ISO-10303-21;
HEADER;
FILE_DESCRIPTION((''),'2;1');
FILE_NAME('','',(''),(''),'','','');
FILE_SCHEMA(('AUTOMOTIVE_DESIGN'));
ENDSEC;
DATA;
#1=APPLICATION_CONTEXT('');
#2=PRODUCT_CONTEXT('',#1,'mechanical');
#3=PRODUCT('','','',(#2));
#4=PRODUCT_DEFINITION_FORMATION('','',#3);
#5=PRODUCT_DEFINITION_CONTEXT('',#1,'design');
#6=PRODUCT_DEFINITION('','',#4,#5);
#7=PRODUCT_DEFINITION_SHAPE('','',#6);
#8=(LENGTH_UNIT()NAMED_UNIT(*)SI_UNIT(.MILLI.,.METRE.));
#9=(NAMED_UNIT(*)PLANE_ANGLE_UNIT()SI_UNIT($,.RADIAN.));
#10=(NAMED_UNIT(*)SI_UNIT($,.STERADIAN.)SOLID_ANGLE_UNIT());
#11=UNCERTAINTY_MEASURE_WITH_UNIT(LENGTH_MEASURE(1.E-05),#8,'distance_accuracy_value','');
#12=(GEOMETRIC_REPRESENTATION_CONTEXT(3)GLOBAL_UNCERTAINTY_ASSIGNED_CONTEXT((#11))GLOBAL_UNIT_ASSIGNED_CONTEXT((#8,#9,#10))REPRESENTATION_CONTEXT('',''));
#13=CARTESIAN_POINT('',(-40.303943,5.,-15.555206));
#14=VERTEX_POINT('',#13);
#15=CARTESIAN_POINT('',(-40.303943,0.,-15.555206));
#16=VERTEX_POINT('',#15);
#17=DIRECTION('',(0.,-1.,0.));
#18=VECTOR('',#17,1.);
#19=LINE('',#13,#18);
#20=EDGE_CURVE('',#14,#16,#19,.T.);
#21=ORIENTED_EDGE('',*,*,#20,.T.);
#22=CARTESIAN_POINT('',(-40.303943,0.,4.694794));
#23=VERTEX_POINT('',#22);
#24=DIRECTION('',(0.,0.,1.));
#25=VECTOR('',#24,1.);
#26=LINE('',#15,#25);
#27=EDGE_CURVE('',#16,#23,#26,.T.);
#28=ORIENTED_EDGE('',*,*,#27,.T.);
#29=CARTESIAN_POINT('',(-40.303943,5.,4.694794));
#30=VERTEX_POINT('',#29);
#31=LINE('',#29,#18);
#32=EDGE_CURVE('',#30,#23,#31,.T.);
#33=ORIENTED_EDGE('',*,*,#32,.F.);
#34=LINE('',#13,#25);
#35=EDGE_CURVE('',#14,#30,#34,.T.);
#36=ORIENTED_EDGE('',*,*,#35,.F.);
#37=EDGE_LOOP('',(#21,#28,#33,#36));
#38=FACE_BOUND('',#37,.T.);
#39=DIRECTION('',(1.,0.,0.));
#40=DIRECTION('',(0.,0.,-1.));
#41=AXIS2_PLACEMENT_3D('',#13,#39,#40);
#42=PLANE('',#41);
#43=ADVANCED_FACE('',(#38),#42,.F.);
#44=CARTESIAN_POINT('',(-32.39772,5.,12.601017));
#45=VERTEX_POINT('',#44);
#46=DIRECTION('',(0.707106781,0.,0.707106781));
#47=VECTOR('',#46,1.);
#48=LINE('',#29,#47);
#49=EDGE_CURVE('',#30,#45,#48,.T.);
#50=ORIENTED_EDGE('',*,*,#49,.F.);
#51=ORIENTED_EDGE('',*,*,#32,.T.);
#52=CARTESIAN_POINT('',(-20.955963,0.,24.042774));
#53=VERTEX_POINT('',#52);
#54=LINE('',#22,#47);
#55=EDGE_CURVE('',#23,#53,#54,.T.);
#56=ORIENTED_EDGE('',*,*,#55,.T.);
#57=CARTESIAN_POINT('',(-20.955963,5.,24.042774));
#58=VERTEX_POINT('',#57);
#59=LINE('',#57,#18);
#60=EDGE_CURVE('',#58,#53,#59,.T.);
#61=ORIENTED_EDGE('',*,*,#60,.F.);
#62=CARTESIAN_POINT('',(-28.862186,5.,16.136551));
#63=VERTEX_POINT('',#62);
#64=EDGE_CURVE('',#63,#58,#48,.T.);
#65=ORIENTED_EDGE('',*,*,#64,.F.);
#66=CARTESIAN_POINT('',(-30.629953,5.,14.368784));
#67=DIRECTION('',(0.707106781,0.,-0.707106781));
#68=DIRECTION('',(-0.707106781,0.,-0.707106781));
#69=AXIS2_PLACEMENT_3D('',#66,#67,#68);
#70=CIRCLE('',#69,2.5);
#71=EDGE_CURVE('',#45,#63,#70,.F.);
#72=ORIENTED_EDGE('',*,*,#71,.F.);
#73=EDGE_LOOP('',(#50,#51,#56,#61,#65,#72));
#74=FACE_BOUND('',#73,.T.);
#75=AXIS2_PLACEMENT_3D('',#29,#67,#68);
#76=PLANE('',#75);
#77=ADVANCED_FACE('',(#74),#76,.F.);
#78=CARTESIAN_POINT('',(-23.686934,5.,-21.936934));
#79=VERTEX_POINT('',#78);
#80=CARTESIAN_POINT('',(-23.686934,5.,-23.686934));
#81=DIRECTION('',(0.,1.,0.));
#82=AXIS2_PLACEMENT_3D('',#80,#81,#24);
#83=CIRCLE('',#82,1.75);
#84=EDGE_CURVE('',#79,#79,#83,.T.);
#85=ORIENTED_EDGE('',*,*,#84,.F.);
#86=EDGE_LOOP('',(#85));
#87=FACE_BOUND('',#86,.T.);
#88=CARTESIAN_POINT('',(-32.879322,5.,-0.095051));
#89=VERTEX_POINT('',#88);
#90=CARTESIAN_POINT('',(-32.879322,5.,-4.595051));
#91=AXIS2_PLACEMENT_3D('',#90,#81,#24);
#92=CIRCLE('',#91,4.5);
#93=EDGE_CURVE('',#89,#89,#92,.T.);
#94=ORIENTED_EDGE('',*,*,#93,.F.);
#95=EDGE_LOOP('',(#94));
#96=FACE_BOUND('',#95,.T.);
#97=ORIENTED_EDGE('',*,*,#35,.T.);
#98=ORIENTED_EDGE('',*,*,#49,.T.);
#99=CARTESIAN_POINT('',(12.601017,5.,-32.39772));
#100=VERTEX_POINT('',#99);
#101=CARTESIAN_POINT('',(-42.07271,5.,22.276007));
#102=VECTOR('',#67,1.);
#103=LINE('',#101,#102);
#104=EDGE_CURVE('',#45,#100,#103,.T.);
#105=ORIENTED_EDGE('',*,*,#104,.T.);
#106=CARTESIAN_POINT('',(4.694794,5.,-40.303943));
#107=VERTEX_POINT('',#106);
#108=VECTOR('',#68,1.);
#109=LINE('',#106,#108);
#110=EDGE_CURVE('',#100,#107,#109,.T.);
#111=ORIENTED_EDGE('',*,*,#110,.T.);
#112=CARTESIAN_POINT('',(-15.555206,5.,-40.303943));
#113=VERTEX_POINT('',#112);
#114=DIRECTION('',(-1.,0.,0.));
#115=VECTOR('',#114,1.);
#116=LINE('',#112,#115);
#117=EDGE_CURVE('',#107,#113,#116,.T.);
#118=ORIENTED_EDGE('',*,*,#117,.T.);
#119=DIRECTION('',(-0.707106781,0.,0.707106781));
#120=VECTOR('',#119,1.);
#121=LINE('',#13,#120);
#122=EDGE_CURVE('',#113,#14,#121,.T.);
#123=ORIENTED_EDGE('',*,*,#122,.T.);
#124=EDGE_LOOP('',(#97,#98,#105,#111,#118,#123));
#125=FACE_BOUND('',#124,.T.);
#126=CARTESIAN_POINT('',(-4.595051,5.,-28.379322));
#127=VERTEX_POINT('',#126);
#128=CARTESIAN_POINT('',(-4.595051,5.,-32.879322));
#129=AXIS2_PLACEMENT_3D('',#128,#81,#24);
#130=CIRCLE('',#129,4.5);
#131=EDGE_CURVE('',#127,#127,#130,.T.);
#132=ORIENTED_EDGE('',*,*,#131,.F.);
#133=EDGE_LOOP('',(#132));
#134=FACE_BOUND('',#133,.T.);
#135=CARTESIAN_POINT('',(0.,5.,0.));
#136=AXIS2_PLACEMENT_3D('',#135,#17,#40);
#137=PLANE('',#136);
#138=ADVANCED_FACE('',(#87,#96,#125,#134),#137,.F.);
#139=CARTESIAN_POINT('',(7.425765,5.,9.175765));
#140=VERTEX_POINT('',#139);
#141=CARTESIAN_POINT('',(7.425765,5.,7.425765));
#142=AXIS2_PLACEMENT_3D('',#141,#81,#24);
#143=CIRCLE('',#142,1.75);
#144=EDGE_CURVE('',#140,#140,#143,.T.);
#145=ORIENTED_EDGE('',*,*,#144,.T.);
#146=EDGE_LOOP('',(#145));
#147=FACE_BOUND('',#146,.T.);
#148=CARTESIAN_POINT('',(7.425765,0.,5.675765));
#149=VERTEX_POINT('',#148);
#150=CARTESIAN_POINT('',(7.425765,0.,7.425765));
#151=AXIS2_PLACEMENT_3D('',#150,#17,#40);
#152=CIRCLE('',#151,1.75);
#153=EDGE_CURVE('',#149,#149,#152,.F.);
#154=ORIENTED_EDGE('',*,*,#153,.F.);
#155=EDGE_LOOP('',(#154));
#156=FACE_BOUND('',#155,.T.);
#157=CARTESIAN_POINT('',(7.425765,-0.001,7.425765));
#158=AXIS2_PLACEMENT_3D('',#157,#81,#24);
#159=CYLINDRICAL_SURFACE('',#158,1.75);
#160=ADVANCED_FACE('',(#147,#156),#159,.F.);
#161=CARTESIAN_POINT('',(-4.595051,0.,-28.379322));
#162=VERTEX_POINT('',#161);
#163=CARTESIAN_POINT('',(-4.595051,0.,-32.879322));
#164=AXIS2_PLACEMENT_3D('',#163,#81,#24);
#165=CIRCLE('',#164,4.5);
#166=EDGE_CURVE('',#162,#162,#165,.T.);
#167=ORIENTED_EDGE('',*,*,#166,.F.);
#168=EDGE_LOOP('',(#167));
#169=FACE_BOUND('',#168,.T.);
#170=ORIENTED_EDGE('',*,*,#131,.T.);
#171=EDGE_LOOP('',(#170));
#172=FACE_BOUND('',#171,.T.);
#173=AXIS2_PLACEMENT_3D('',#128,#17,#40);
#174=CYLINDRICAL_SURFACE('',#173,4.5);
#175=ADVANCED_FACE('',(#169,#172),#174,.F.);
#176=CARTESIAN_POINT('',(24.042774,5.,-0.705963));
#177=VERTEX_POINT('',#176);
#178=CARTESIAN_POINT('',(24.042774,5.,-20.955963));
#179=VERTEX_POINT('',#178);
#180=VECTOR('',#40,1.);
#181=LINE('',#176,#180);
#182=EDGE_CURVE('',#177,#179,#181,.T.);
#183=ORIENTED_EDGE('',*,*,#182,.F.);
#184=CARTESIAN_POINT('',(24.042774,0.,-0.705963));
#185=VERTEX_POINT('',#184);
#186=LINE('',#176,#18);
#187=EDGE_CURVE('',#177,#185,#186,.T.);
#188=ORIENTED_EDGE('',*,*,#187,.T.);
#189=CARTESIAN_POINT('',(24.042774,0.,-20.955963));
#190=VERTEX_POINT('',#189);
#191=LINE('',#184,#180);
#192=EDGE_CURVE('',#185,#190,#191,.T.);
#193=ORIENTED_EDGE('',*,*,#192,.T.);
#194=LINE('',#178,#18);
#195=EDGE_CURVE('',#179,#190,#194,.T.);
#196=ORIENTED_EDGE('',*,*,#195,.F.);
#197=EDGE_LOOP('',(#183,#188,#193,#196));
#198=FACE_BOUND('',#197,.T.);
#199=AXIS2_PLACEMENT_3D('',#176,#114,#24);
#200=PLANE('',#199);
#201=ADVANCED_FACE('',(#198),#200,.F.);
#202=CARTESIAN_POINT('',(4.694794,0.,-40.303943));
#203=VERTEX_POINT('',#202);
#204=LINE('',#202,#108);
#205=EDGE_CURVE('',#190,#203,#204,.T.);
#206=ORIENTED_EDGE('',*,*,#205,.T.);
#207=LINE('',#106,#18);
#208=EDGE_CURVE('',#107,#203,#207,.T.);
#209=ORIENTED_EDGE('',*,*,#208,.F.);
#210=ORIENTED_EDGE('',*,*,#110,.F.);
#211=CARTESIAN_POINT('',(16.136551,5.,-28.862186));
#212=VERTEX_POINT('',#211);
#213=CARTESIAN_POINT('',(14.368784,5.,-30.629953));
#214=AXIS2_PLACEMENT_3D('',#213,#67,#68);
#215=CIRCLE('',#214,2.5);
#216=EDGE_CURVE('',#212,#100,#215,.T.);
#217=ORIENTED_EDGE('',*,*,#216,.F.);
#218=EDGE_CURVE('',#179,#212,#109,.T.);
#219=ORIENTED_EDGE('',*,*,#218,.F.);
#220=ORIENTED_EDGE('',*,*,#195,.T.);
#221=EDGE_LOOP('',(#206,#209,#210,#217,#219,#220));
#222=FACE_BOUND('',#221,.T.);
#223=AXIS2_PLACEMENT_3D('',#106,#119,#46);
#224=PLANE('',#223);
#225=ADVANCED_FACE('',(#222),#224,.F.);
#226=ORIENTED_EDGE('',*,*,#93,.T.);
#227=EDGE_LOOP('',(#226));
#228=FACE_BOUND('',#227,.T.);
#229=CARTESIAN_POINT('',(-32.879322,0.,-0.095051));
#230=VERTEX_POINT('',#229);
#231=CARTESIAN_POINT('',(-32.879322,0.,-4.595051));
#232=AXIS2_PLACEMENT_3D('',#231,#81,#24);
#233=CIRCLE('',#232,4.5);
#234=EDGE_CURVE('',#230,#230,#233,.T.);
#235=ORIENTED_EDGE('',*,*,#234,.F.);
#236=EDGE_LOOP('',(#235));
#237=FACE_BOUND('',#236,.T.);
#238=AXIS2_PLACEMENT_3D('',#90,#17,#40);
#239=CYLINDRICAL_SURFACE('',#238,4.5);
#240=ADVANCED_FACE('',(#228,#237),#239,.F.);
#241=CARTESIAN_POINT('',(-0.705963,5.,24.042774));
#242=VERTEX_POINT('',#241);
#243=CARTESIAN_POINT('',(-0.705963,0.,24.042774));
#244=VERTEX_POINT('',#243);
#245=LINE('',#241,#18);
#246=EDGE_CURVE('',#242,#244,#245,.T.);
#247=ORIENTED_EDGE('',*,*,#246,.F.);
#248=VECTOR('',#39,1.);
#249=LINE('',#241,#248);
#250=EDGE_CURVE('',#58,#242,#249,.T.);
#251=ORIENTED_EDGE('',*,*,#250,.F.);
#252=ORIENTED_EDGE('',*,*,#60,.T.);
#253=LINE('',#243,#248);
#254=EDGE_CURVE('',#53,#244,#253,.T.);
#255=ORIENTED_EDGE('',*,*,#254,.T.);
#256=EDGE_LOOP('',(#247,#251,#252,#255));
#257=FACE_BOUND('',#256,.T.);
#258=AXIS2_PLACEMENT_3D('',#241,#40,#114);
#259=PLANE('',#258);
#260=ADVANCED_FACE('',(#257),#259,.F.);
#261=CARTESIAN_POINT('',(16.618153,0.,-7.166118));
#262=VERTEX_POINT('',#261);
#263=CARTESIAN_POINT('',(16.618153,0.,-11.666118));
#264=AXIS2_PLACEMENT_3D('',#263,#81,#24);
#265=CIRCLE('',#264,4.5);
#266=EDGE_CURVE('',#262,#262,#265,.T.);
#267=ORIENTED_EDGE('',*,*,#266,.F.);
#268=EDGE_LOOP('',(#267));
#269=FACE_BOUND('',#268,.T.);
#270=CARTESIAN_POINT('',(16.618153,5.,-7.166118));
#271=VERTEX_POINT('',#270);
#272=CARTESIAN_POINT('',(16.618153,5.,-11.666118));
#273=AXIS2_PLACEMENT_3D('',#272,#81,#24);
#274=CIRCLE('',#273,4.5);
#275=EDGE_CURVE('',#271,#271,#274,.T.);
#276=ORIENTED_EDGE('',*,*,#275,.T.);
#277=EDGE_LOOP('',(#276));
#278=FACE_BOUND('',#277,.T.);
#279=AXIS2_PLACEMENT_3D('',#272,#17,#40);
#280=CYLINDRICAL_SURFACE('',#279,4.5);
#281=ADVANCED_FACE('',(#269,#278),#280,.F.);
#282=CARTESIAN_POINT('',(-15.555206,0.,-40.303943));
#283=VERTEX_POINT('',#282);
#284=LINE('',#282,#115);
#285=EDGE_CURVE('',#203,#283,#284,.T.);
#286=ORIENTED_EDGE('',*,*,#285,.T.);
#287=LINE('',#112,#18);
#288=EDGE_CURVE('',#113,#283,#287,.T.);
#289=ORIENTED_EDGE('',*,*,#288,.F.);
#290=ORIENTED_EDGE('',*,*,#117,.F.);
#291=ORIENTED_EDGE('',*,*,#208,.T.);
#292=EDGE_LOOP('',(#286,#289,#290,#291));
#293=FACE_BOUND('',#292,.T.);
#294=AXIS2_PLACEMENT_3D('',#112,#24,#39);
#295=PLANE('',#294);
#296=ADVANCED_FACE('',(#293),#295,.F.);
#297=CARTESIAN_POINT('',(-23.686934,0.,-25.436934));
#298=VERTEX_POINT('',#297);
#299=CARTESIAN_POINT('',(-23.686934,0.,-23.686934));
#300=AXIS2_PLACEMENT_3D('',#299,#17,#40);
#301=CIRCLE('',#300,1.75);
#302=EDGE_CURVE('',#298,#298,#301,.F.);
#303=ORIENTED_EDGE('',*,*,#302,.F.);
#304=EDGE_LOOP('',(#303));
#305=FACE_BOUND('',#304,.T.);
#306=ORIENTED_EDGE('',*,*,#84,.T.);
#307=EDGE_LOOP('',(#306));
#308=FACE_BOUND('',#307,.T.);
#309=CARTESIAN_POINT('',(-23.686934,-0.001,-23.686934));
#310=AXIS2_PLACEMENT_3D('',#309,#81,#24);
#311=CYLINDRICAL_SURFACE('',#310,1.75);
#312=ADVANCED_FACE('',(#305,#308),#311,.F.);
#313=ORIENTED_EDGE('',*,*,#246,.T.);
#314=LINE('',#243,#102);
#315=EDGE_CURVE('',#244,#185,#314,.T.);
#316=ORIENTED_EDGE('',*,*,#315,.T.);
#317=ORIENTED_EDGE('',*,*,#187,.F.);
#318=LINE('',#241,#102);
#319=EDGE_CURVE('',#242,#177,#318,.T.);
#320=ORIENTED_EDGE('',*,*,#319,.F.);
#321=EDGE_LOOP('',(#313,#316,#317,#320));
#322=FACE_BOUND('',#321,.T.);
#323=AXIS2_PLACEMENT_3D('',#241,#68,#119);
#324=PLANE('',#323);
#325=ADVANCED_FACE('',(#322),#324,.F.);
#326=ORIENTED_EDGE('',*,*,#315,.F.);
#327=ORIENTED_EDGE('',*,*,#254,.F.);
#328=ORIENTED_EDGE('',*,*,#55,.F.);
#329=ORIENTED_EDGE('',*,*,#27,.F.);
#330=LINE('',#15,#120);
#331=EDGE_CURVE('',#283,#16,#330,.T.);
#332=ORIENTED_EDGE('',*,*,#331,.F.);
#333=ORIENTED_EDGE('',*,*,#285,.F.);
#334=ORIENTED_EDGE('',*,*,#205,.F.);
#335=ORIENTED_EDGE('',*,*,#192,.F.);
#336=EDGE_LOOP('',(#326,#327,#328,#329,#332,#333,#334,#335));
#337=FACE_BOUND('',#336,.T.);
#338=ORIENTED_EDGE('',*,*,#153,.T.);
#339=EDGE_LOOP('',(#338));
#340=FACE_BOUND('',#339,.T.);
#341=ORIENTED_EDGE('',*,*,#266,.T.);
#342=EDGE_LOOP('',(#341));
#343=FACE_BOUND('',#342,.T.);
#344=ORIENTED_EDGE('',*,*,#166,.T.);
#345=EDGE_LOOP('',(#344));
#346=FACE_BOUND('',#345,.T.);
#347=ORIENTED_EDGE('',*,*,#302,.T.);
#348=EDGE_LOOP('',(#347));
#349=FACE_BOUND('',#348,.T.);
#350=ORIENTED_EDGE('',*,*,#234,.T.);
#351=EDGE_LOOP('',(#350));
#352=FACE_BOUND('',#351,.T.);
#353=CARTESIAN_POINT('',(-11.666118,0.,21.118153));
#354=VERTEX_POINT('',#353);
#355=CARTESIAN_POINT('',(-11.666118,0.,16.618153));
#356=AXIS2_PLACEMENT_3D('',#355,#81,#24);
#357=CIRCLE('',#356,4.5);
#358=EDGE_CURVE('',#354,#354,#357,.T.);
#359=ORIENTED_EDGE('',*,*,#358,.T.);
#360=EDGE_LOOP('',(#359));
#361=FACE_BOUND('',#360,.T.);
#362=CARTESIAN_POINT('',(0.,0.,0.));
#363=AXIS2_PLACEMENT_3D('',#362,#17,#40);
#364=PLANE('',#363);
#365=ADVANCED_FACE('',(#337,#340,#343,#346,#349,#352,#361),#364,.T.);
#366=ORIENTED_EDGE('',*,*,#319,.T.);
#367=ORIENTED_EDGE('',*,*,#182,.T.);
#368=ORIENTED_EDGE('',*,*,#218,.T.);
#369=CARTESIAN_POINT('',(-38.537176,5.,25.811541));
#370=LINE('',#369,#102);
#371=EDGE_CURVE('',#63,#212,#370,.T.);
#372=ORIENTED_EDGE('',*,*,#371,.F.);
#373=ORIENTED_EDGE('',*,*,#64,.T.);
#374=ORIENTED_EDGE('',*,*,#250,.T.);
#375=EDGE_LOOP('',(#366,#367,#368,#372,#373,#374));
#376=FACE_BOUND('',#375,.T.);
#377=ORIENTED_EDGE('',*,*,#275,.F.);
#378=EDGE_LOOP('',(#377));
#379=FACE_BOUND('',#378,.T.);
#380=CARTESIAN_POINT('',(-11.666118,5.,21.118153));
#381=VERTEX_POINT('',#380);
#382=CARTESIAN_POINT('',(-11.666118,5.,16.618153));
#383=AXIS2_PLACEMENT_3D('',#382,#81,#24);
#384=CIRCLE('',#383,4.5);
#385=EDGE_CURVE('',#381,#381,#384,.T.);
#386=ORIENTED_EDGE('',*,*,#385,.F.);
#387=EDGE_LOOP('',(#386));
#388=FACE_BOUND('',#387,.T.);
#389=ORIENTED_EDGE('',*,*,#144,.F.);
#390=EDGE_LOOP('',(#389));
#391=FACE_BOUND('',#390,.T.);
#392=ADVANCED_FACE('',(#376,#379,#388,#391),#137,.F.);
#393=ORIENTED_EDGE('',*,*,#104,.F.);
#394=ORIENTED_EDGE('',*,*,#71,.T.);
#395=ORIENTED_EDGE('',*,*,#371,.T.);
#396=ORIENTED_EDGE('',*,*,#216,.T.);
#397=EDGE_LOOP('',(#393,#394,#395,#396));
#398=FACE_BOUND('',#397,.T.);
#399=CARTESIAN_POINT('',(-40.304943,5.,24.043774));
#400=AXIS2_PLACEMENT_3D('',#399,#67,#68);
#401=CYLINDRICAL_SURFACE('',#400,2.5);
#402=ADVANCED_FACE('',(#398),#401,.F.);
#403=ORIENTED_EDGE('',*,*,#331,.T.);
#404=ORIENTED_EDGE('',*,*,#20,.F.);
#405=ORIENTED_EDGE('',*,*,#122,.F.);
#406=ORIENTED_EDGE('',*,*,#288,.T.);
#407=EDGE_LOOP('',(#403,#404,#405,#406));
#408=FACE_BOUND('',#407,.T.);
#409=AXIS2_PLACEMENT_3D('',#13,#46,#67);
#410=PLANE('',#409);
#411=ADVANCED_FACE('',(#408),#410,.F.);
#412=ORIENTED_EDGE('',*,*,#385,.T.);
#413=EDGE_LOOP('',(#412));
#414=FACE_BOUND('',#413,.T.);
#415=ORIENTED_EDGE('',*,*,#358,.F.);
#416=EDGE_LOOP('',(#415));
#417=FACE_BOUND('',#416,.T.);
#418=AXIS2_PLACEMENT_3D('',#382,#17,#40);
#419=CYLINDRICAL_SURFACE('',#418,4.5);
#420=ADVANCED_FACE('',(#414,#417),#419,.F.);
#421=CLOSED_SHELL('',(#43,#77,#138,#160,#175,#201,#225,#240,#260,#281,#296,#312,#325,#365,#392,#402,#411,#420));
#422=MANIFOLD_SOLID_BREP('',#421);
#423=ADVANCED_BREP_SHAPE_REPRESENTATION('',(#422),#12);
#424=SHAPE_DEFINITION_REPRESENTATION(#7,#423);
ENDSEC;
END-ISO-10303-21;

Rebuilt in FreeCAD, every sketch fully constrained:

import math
import FreeCAD as App
import Part
import Sketcher
Q = App.Units.Quantity

doc = App.newDocument("Part")
body = doc.addObject("PartDesign::Body", "Body")

sketch1 = body.newObject("Sketcher::SketchObject", "Sketch")
sketch1.AttachmentSupport = (doc.getObject("XZ_Plane"), [""])
sketch1.MapMode = "FlatFace"
sketch1.addGeometry([
    Part.LineSegment(App.Vector(-15.555206, -40.303943, 0), App.Vector(-40.303943, -15.555206, 0)),
    Part.LineSegment(App.Vector(-40.303943, -15.555206, 0), App.Vector(-40.303943, 4.694794, 0)),
    Part.LineSegment(App.Vector(-40.303943, 4.694794, 0), App.Vector(-20.955963, 24.042774, 0)),
    Part.LineSegment(App.Vector(-20.955963, 24.042774, 0), App.Vector(-0.705963, 24.042774, 0)),
    Part.LineSegment(App.Vector(-0.705963, 24.042774, 0), App.Vector(24.042774, -0.705963, 0)),
    Part.LineSegment(App.Vector(24.042774, -0.705963, 0), App.Vector(24.042774, -20.955963, 0)),
    Part.LineSegment(App.Vector(24.042774, -20.955963, 0), App.Vector(4.694794, -40.303943, 0)),
    Part.LineSegment(App.Vector(4.694794, -40.303943, 0), App.Vector(-15.555206, -40.303943, 0)),
    Part.Circle(App.Vector(-11.666118, 16.618153, 0), App.Vector(0, 0, 1), 4.5),
    Part.Circle(App.Vector(-32.879322, -4.595051, 0), App.Vector(0, 0, 1), 4.5),
    Part.Circle(App.Vector(16.618153, -11.666118, 0), App.Vector(0, 0, 1), 4.5),
    Part.Circle(App.Vector(-4.595051, -32.879322, 0), App.Vector(0, 0, 1), 4.5),
], False)
sketch1.addConstraint([
    Sketcher.Constraint("Coincident", 0, 2, 1, 1),
    Sketcher.Constraint("Coincident", 1, 2, 2, 1),
    Sketcher.Constraint("Coincident", 2, 2, 3, 1),
    Sketcher.Constraint("Coincident", 3, 2, 4, 1),
    Sketcher.Constraint("Coincident", 4, 2, 5, 1),
    Sketcher.Constraint("Coincident", 5, 2, 6, 1),
    Sketcher.Constraint("Coincident", 6, 2, 7, 1),
    Sketcher.Constraint("Coincident", 7, 2, 0, 1),
    Sketcher.Constraint("Vertical", 1),
    Sketcher.Constraint("Horizontal", 3),
    Sketcher.Constraint("Vertical", 5),
    Sketcher.Constraint("Horizontal", 7),
    Sketcher.Constraint("Equal", 8, 9),
    Sketcher.Constraint("Equal", 9, 10),
    Sketcher.Constraint("Equal", 10, 11),
    Sketcher.Constraint("Perpendicular", 0, 2),
    Sketcher.Constraint("Perpendicular", 2, 4),
    Sketcher.Constraint("Perpendicular", 4, 6),
    Sketcher.Constraint("Equal", 3, 7),
    Sketcher.Constraint("Equal", 7, 1),
    Sketcher.Constraint("Equal", 1, 5),
    Sketcher.Constraint("Diameter", 8, Q("9 mm")),
    Sketcher.Constraint("Angle", 0, Q("135 deg")),
    Sketcher.Constraint("Distance", 0, Q("35 mm")),
    Sketcher.Constraint("DistanceX", 3, 1, 3, 2, Q("20.25 mm")),
    Sketcher.Constraint("DistanceX", 8, 3, -1, 1, Q("11.666118 mm")),
    Sketcher.Constraint("DistanceX", 9, 3, -1, 1, Q("32.879322 mm")),
    Sketcher.Constraint("DistanceY", 9, 3, -1, 1, Q("4.595051 mm")),
    Sketcher.Constraint("DistanceY", 10, 3, -1, 1, Q("11.666118 mm")),
    Sketcher.Constraint("DistanceX", 11, 3, -1, 1, Q("4.595051 mm")),
    Sketcher.Constraint("DistanceY", 11, 3, -1, 1, Q("32.879322 mm")),
    Sketcher.Constraint("DistanceX", 8, 3, 10, 3, Q("28.284271 mm")),
    Sketcher.Constraint("DistanceY", 10, 3, 8, 3, Q("28.284271 mm")),
    Sketcher.Constraint("DistanceX", 0, 2, 9, 3, Q("7.424621 mm")),
    Sketcher.Constraint("DistanceY", 0, 2, 8, 3, Q("32.173359 mm")),
    Sketcher.Constraint("DistanceY", 8, 3, 2, 2, Q("7.424621 mm")),
])
pad1 = body.newObject("PartDesign::Pad", "Pad")
pad1.Profile = sketch1
pad1.Length = 5
pad1.Reversed = True

sketch2 = body.newObject("Sketcher::SketchObject", "Sketch001")
sketch2.Placement = App.Placement(App.Vector(22.499369, 0, -22.499369), App.Rotation(App.Vector(-0.707106781, 0, -0.707106781), App.Vector(0, 0.999999999, 0), App.Vector(0.707106781, 0, -0.707106781), "ZXY"))
sketch2.addGeometry([
    Part.LineSegment(App.Vector(13.998383, 5, 0), App.Vector(8.998383, 5, 0)),
    Part.ArcOfCircle(Part.Circle(App.Vector(11.498383, 5, 0), App.Vector(0, 0, 1), 2.5), math.radians(180), math.radians(360)),
], False)
sketch2.addConstraint([
    Sketcher.Constraint("Coincident", 0, 1, 1, 2),
    Sketcher.Constraint("Coincident", 1, 1, 0, 2),
    Sketcher.Constraint("Horizontal", 0),
    Sketcher.Constraint("Horizontal", 1, 3, 0, 1),
    Sketcher.Constraint("Radius", 1, Q("2.5 mm")),
    Sketcher.Constraint("DistanceY", -1, 1, 1, 3, Q("5 mm")),
    Sketcher.Constraint("DistanceX", -1, 1, 1, 3, Q("11.498383 mm")),
])
pocket1 = body.newObject("PartDesign::Pocket", "Pocket")
pocket1.Profile = sketch2
pocket1.Type = "UpToFirst"

sketch3 = body.newObject("Sketcher::SketchObject", "Sketch002")
sketch3.AttachmentSupport = (doc.getObject("XZ_Plane"), [""])
sketch3.MapMode = "FlatFace"
sketch3.AttachmentOffset = App.Placement(App.Vector(0, 0, -5), App.Rotation())
sketch3.addGeometry(Part.Circle(App.Vector(-23.686934, -23.686934, 0), App.Vector(0, 0, 1), 1.75), False)
sketch3.addConstraint([
    Sketcher.Constraint("Diameter", 0, Q("3.5 mm")),
    Sketcher.Constraint("DistanceX", 0, 3, -1, 1, Q("23.686934 mm")),
    Sketcher.Constraint("DistanceY", 0, 3, -1, 1, Q("23.686934 mm")),
])
pocket2 = body.newObject("PartDesign::Pocket", "Pocket001")
pocket2.Profile = sketch3
pocket2.Type = "UpToFirst"
pocket2.Reversed = True

sketch4 = body.newObject("Sketcher::SketchObject", "Sketch003")
sketch4.AttachmentSupport = (doc.getObject("XZ_Plane"), [""])
sketch4.MapMode = "FlatFace"
sketch4.AttachmentOffset = App.Placement(App.Vector(0, 0, -5), App.Rotation())
sketch4.addGeometry(Part.Circle(App.Vector(7.425765, 7.425765, 0), App.Vector(0, 0, 1), 1.75), False)
sketch4.addConstraint([
    Sketcher.Constraint("Diameter", 0, Q("3.5 mm")),
    Sketcher.Constraint("DistanceX", -1, 1, 0, 3, Q("7.425765 mm")),
    Sketcher.Constraint("DistanceY", -1, 1, 0, 3, Q("7.425765 mm")),
])
pocket3 = body.newObject("PartDesign::Pocket", "Pocket002")
pocket3.Profile = sketch4
pocket3.Type = "UpToFirst"
pocket3.Reversed = True

doc.recompute()
